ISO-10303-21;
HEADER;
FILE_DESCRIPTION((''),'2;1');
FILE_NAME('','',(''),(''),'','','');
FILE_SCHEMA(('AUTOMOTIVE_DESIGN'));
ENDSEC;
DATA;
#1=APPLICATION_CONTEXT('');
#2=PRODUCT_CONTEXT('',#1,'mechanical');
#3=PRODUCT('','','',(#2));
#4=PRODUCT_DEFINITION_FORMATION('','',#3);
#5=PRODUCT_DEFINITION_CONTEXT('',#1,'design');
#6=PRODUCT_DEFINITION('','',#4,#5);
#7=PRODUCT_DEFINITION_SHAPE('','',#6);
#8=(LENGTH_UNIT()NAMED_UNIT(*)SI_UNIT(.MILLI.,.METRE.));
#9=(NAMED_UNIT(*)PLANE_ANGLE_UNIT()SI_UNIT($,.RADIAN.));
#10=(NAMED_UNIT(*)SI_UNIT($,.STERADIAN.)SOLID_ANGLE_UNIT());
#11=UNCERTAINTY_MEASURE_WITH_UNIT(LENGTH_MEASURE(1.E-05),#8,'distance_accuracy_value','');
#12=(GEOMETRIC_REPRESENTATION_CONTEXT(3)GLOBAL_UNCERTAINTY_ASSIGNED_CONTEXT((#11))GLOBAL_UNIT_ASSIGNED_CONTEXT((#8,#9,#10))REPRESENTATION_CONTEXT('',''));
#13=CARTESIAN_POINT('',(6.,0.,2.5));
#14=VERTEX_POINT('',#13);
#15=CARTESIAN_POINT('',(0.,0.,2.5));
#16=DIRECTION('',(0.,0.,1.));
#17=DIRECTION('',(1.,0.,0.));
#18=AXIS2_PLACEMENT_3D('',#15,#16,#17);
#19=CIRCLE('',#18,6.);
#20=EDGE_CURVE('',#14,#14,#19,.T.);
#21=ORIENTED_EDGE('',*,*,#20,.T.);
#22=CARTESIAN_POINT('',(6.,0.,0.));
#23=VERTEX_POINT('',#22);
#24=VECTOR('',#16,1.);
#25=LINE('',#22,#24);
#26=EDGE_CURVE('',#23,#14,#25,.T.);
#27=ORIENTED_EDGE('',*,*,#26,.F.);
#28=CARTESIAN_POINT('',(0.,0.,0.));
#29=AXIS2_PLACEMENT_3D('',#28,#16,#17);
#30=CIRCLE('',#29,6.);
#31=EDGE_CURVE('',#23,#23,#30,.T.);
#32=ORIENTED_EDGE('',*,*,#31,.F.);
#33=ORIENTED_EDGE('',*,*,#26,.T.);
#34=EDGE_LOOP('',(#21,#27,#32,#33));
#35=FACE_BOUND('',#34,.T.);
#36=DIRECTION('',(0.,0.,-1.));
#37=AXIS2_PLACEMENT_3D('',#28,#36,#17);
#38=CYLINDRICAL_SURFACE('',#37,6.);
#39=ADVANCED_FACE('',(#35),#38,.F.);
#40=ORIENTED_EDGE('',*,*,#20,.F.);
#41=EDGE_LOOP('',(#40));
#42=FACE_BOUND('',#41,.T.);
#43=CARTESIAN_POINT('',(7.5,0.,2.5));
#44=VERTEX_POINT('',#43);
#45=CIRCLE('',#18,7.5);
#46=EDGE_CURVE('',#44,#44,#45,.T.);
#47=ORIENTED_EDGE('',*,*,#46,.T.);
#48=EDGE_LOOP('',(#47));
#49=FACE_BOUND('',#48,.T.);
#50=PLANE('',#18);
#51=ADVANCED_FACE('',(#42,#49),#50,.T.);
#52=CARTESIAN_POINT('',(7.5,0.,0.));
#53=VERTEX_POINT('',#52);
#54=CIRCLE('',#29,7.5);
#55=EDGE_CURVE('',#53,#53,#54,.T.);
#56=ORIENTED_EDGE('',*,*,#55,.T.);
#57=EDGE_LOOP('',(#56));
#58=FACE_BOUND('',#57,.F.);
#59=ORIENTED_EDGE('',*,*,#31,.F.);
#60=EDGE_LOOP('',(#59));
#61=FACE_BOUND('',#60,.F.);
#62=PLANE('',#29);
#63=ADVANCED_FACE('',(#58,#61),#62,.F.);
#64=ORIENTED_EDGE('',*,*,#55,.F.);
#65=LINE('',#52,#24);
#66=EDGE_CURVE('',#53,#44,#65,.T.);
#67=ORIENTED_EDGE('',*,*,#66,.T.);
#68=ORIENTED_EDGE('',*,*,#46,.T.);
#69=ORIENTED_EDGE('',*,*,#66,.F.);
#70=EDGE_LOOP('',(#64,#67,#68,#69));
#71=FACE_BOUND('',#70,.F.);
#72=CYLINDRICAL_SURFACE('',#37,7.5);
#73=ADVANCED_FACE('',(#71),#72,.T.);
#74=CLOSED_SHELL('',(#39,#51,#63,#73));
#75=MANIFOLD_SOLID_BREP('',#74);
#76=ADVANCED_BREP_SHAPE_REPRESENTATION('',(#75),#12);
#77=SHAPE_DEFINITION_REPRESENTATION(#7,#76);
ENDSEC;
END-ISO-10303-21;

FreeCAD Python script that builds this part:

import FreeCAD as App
import Part
import Sketcher
from FreeCAD import Vector

doc = App.newDocument("Part")
body = doc.addObject("PartDesign::Body", "Body")

sketch1 = body.newObject("Sketcher::SketchObject", "Sketch")
sketch1.AttachmentSupport = (doc.getObject("XY_Plane"), [""])
sketch1.MapMode = "FlatFace"
sketch1.addGeometry([
    Part.Circle(Vector(0, 0, 0), Vector(0, 0, 1), 8),
    Part.Circle(Vector(0, 0, 0), Vector(0, 0, 1), 6),
], False)
sketch1.addConstraint([
    Sketcher.Constraint("Coincident", 0, 3, -1, 1),
    Sketcher.Constraint("Coincident", 1, 3, -1, 1),
    Sketcher.Constraint("Diameter", 0, 15.0),
    Sketcher.Constraint("Diameter", 1, 12.0),
])
pad1 = body.newObject("PartDesign::Pad", "Pad")
pad1.Profile = sketch1
pad1.Length = 2.5

doc.recompute()
